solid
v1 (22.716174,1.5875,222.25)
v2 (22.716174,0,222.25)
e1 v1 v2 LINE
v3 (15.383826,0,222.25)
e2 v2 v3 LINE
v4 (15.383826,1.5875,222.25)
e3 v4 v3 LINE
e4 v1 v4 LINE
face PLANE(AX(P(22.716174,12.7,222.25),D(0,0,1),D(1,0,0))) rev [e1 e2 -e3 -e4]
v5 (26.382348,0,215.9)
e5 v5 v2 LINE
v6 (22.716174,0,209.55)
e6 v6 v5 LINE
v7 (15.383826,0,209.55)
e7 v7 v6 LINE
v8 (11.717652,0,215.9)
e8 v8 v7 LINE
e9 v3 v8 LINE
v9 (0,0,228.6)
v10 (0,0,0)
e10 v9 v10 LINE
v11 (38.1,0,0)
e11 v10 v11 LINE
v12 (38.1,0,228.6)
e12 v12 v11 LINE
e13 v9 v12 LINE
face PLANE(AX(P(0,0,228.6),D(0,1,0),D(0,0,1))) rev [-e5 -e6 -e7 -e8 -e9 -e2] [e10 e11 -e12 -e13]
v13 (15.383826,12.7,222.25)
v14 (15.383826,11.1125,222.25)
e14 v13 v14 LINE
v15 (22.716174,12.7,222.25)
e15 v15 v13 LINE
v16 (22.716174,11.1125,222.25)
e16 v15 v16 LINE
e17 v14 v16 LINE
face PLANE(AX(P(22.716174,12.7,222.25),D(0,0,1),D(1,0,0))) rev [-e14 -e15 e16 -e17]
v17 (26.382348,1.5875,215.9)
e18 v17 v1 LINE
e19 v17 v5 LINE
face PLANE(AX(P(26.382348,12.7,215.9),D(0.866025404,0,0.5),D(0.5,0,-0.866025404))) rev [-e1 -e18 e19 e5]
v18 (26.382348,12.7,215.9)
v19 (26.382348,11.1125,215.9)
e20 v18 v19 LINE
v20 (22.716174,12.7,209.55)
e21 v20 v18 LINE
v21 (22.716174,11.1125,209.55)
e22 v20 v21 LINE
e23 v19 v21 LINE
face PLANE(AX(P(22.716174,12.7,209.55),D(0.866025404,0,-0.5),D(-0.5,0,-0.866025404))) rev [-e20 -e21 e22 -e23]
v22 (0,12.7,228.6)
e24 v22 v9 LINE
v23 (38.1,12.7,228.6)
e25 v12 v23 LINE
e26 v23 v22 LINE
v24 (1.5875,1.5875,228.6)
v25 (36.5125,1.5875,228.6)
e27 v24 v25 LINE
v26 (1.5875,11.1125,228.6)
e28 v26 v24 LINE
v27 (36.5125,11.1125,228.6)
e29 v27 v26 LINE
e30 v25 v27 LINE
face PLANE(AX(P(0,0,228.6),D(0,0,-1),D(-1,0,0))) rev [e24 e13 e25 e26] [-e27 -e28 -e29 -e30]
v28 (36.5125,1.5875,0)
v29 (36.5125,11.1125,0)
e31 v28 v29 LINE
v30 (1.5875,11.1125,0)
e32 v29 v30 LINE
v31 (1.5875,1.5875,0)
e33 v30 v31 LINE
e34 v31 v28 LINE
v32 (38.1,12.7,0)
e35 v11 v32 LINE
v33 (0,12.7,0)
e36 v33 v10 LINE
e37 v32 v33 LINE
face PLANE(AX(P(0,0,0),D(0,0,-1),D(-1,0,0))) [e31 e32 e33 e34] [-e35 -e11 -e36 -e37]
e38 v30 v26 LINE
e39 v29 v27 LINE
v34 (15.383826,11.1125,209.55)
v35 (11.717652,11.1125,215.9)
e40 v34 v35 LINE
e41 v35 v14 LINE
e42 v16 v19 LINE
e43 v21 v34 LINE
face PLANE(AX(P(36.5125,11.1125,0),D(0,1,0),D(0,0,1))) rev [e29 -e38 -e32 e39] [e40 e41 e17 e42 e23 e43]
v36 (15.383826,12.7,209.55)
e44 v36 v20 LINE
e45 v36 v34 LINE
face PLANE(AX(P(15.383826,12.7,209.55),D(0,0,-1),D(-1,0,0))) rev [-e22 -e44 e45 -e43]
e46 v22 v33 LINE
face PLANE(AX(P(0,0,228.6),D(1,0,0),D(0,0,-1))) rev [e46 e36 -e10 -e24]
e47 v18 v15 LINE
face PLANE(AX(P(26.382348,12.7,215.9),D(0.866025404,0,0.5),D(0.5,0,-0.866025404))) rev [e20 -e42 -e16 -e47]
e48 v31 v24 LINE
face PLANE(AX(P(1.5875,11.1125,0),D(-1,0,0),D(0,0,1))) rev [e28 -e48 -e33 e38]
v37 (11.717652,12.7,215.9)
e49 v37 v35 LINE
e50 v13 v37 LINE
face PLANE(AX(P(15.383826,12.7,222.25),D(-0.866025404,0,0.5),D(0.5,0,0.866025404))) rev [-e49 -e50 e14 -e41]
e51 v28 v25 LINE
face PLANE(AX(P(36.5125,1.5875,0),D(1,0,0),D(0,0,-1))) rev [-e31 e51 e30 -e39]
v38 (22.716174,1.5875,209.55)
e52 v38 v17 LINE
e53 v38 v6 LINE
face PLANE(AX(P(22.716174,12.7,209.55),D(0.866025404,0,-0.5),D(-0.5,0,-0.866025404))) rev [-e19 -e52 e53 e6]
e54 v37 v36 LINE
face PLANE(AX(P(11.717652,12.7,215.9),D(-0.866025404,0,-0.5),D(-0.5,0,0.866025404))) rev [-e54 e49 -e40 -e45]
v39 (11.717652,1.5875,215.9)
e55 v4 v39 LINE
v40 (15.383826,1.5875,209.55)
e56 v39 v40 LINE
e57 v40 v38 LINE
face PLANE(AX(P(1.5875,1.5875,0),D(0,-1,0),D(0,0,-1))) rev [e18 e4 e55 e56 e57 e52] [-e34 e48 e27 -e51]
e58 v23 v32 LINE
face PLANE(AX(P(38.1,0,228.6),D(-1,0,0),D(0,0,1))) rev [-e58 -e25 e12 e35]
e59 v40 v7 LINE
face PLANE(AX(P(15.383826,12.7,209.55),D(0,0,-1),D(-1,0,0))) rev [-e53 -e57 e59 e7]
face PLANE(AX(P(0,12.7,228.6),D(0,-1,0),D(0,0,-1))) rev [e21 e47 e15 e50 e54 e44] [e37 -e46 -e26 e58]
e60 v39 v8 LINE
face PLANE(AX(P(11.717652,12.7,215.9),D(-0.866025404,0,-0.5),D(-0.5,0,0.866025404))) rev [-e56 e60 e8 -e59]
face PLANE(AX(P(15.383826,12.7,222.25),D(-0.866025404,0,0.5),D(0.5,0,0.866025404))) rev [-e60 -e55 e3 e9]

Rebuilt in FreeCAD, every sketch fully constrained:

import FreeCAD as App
import Part
import Sketcher
Q = App.Units.Quantity

doc = App.newDocument("Part")
body = doc.addObject("PartDesign::Body", "Body")

sketch1 = doc.addObject("Sketcher::SketchObject", "Sketch")
body.addObject(sketch1)
sketch1.AttachmentSupport = (doc.XY_Plane, [""])
sketch1.MapMode = "FlatFace"
sketch1.addGeometry(Part.LineSegment(App.Vector(0, 13, 0), App.Vector(0, 0, 0)), False)
sketch1.addGeometry(Part.LineSegment(App.Vector(0, 0, 0), App.Vector(38, 0, 0)), False)
sketch1.addGeometry(Part.LineSegment(App.Vector(38, 0, 0), App.Vector(38, 13, 0)), False)
sketch1.addGeometry(Part.LineSegment(App.Vector(38, 13, 0), App.Vector(0, 13, 0)), False)
sketch1.addConstraint(Sketcher.Constraint("Coincident", 0, 2, 1, 1))
sketch1.addConstraint(Sketcher.Constraint("Coincident", 1, 2, 2, 1))
sketch1.addConstraint(Sketcher.Constraint("Coincident", 2, 2, 3, 1))
sketch1.addConstraint(Sketcher.Constraint("Coincident", 3, 2, 0, 1))
sketch1.addConstraint(Sketcher.Constraint("Vertical", 0))
sketch1.addConstraint(Sketcher.Constraint("Horizontal", 1))
sketch1.addConstraint(Sketcher.Constraint("Vertical", 2))
sketch1.addConstraint(Sketcher.Constraint("Horizontal", 3))
sketch1.addConstraint(Sketcher.Constraint("Coincident", 0, 2, -1, 1))
sketch1.addConstraint(Sketcher.Constraint("DistanceX", 1, 1, 1, 2, Q("1.5 in")))
sketch1.addConstraint(Sketcher.Constraint("DistanceY", 0, 2, 0, 1, Q("0.5 in")))
pad1 = doc.addObject("PartDesign::Pad", "Pad")
body.addObject(pad1)
pad1.Profile = sketch1
pad1.Length = Q("9 in")

sketch2 = doc.addObject("Sketcher::SketchObject", "Sketch001")
body.addObject(sketch2)
sketch2.AttachmentSupport = (doc.XY_Plane, [""])
sketch2.MapMode = "FlatFace"
sketch2.AttachmentOffset = App.Placement(App.Vector(0, 0, 9 * 25.4), App.Rotation())
sketch2.addGeometry(Part.LineSegment(App.Vector(2, 11, 0), App.Vector(2, 2, 0)), False)
sketch2.addGeometry(Part.LineSegment(App.Vector(2, 2, 0), App.Vector(37, 2, 0)), False)
sketch2.addGeometry(Part.LineSegment(App.Vector(37, 2, 0), App.Vector(37, 11, 0)), False)
sketch2.addGeometry(Part.LineSegment(App.Vector(37, 11, 0), App.Vector(2, 11, 0)), False)
sketch2.addConstraint(Sketcher.Constraint("Coincident", 0, 2, 1, 1))
sketch2.addConstraint(Sketcher.Constraint("Coincident", 1, 2, 2, 1))
sketch2.addConstraint(Sketcher.Constraint("Coincident", 2, 2, 3, 1))
sketch2.addConstraint(Sketcher.Constraint("Coincident", 3, 2, 0, 1))
sketch2.addConstraint(Sketcher.Constraint("Vertical", 0))
sketch2.addConstraint(Sketcher.Constraint("Horizontal", 1))
sketch2.addConstraint(Sketcher.Constraint("Vertical", 2))
sketch2.addConstraint(Sketcher.Constraint("Horizontal", 3))
sketch2.addConstraint(Sketcher.Constraint("DistanceX", 1, 1, 1, 2, Q("1.375 in")))
sketch2.addConstraint(Sketcher.Constraint("DistanceY", 0, 2, 0, 1, Q("0.375 in")))
sketch2.addConstraint(Sketcher.Constraint("DistanceX", -1, 1, 0, 2, Q("0.0625 in")))
sketch2.addConstraint(Sketcher.Constraint("DistanceY", -1, 1, 0, 2, Q("0.0625 in")))
pocket1 = doc.addObject("PartDesign::Pocket", "Pocket")
body.addObject(pocket1)
pocket1.Profile = sketch2
pocket1.Type = "ThroughAll"

sketch3 = doc.addObject("Sketcher::SketchObject", "Sketch002")
body.addObject(sketch3)
sketch3.AttachmentSupport = (doc.XZ_Plane, [""])
sketch3.MapMode = "FlatFace"
sketch3.addGeometry(Part.LineSegment(App.Vector(26, 216, 0), App.Vector(23, 222, 0)), False)
sketch3.addGeometry(Part.LineSegment(App.Vector(23, 222, 0), App.Vector(15, 222, 0)), False)
sketch3.addGeometry(Part.LineSegment(App.Vector(15, 222, 0), App.Vector(12, 216, 0)), False)
sketch3.addGeometry(Part.LineSegment(App.Vector(12, 216, 0), App.Vector(15, 210, 0)), False)
sketch3.addGeometry(Part.LineSegment(App.Vector(15, 210, 0), App.Vector(23, 210, 0)), False)
sketch3.addGeometry(Part.LineSegment(App.Vector(23, 210, 0), App.Vector(26, 216, 0)), False)
sketch3.addConstraint(Sketcher.Constraint("Coincident", 0, 2, 1, 1))
sketch3.addConstraint(Sketcher.Constraint("Coincident", 1, 2, 2, 1))
sketch3.addConstraint(Sketcher.Constraint("Coincident", 2, 2, 3, 1))
sketch3.addConstraint(Sketcher.Constraint("Coincident", 3, 2, 4, 1))
sketch3.addConstraint(Sketcher.Constraint("Coincident", 4, 2, 5, 1))
sketch3.addConstraint(Sketcher.Constraint("Coincident", 5, 2, 0, 1))
sketch3.addConstraint(Sketcher.Constraint("Horizontal", 1))
sketch3.addConstraint(Sketcher.Constraint("Horizontal", 4))
sketch3.addConstraint(Sketcher.Constraint("Parallel", 0, 3))
sketch3.addConstraint(Sketcher.Constraint("Parallel", 2, 5))
sketch3.addConstraint(Sketcher.Constraint("Horizontal", 2, 2, 5, 2))
sketch3.addConstraint(Sketcher.Constraint("Vertical", 1, 2, 3, 2))
sketch3.addConstraint(Sketcher.Constraint("Vertical", 0, 2, 4, 2))
sketch3.addConstraint(Sketcher.Constraint("Angle", 0, Q("120 deg")))
sketch3.addConstraint(Sketcher.Constraint("DistanceY", -1, 1, 2, 2, Q("8.5 in")))
sketch3.addConstraint(Sketcher.Constraint("DistanceY", 3, 2, 1, 2, Q("0.5 in")))
sketch3.addConstraint(Sketcher.Constraint("DistanceX", 1, 2, 1, 1, Q("7.332348 mm")))
sketch3.addConstraint(Sketcher.Constraint("DistanceX", -1, 1, 2, 2, Q("11.717652 mm")))
pocket2 = doc.addObject("PartDesign::Pocket", "Pocket001")
body.addObject(pocket2)
pocket2.Profile = sketch3
pocket2.Type = "ThroughAll"

doc.recompute()
